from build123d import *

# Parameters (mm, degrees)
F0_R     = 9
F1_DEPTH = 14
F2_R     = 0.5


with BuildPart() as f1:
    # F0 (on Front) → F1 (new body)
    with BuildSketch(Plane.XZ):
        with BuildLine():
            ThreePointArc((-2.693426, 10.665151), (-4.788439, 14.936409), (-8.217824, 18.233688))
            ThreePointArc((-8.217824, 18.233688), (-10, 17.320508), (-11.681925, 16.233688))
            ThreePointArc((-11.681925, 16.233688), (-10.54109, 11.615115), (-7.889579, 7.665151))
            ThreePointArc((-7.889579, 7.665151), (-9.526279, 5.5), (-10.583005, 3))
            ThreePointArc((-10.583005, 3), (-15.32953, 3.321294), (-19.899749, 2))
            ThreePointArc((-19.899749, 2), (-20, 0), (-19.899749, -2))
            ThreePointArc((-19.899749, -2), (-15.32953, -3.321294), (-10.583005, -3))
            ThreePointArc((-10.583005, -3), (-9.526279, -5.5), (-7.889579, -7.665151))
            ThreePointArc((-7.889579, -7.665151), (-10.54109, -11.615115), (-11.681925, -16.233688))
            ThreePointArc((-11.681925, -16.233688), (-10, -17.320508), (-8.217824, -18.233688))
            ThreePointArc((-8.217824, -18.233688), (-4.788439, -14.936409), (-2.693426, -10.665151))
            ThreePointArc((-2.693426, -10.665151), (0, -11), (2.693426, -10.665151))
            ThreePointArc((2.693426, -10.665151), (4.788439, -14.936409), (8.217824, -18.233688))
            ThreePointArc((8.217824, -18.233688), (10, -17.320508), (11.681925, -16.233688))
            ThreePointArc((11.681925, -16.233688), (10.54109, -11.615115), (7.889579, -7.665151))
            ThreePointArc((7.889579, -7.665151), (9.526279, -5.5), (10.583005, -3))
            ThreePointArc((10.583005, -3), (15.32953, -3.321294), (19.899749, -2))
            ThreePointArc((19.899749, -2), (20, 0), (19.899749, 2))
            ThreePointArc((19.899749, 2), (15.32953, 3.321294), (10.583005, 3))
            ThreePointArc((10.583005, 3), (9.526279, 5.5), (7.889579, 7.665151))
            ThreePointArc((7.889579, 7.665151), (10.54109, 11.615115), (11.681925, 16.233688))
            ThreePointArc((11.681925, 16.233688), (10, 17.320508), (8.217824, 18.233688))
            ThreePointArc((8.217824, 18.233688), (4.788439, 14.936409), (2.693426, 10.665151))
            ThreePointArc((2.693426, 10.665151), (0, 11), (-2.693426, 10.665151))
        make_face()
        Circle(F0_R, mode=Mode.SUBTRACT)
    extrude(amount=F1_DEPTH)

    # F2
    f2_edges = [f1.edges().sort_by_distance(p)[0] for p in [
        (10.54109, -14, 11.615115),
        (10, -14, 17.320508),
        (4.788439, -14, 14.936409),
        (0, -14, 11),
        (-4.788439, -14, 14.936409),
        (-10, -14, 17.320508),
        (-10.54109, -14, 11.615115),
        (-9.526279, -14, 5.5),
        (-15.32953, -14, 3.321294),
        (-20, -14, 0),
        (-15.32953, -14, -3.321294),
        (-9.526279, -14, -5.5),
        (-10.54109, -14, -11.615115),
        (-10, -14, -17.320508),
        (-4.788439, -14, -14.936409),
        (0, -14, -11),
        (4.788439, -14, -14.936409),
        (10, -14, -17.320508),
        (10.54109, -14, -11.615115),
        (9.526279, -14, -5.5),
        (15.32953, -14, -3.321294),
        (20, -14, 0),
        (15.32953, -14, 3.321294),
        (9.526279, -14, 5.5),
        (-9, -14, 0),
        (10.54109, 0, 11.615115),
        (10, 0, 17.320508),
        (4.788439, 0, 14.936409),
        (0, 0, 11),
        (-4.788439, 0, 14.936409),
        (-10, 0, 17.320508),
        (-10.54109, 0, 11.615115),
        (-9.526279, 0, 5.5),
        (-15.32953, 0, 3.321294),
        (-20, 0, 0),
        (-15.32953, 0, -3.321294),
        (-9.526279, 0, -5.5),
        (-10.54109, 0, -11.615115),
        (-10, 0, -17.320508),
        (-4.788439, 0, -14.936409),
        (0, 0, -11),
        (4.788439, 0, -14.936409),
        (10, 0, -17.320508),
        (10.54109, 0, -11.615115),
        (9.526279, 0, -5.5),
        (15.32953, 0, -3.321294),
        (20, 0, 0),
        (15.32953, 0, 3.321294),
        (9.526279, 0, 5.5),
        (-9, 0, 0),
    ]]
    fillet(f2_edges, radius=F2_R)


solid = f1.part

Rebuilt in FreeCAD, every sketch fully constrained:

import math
import FreeCAD as App
import Part
import Sketcher
from FreeCAD import Vector
Q = App.Units.Quantity


def edges_at(feature, points):
    """Names of the edges that pass closest to the given points."""
    edges = feature.Shape.Edges
    near = lambda p: min(range(len(edges)), key=lambda i: edges[i].distToShape(Part.Vertex(*p))[0])
    return sorted({f"Edge{near(p) + 1}" for p in points})

doc = App.newDocument("Part")
body = doc.addObject("PartDesign::Body", "Body")

# Sketch on XZ plane
sketch1 = body.newObject("Sketcher::SketchObject", "Sketch")
sketch1.AttachmentSupport = (doc.getObject("XZ_Plane"), [""])
sketch1.MapMode = "FlatFace"
sketch1.addGeometry([
    Part.ArcOfCircle(Part.Circle(Vector(-15.854191, 6.859338, 0), Vector(0, 0, 1), 13.699998), math.radians(16.128745), math.radians(56.123881)),  # 0
    Part.ArcOfCircle(Part.Circle(Vector(0.000017, -0.000026, 0), Vector(0, 0, 1), 20.000031), math.radians(114.260844), math.radians(125.739165)),  # 1
    Part.ArcOfCircle(Part.Circle(Vector(1.986742, 17.159804, 0), Vector(0, 0, 1), 13.700005), math.radians(-176.123869), math.radians(-136.128758)),  # 2
    Part.ArcOfCircle(Part.Circle(Vector(0.000005, -0.000003, 0), Vector(0, 0, 1), 11.000006), math.radians(135.826631), math.radians(164.173372)),  # 3
    Part.ArcOfCircle(Part.Circle(Vector(-13.867456, -10.300474, 0), Vector(0, 0, 1), 13.700008), math.radians(76.128758), math.radians(116.123862)),  # 4
    Part.ArcOfCircle(Part.Circle(Vector(0.000051, 0, 0), Vector(0, 0, 1), 20.000051), math.radians(174.260844), math.radians(185.739156)),  # 5
    Part.ArcOfCircle(Part.Circle(Vector(-13.867456, 10.300474, 0), Vector(0, 0, 1), 13.700008), math.radians(-116.123862), math.radians(-76.128758)),  # 6
    Part.ArcOfCircle(Part.Circle(Vector(0.000005, 0.000003, 0), Vector(0, 0, 1), 11.000006), math.radians(-164.173372), math.radians(-135.826631)),  # 7
    Part.ArcOfCircle(Part.Circle(Vector(1.986742, -17.159804, 0), Vector(0, 0, 1), 13.700005), math.radians(136.128758), math.radians(176.123869)),  # 8
    Part.ArcOfCircle(Part.Circle(Vector(0.000017, 0.000026, 0), Vector(0, 0, 1), 20.000031), math.radians(-125.739165), math.radians(-114.260844)),  # 9
    Part.ArcOfCircle(Part.Circle(Vector(-15.854191, -6.859338, 0), Vector(0, 0, 1), 13.699998), math.radians(-56.123881), math.radians(-16.128745)),  # 10
    Part.ArcOfCircle(Part.Circle(Vector(0, -0.000016, 0), Vector(0, 0, 1), 10.999984), math.radians(-104.173398), math.radians(-75.826602)),  # 11
    Part.ArcOfCircle(Part.Circle(Vector(15.854191, -6.859338, 0), Vector(0, 0, 1), 13.699998), math.radians(-163.871255), math.radians(-123.876119)),  # 12
    Part.ArcOfCircle(Part.Circle(Vector(-0.000017, 0.000026, 0), Vector(0, 0, 1), 20.000031), math.radians(-65.739156), math.radians(-54.260835)),  # 13
    Part.ArcOfCircle(Part.Circle(Vector(-1.986742, -17.159804, 0), Vector(0, 0, 1), 13.700005), math.radians(3.876131), math.radians(43.871242)),  # 14
    Part.ArcOfCircle(Part.Circle(Vector(-0.000005, 0.000003, 0), Vector(0, 0, 1), 11.000006), math.radians(-44.173369), math.radians(-15.826628)),  # 15
    Part.ArcOfCircle(Part.Circle(Vector(13.867456, 10.300474, 0), Vector(0, 0, 1), 13.700008), math.radians(-103.871242), math.radians(-63.876138)),  # 16
    Part.ArcOfCircle(Part.Circle(Vector(-0.000051, 0, 0), Vector(0, 0, 1), 20.000051), math.radians(-5.739156), math.radians(5.739156)),  # 17
    Part.ArcOfCircle(Part.Circle(Vector(13.867456, -10.300474, 0), Vector(0, 0, 1), 13.700008), math.radians(63.876138), math.radians(103.871242)),  # 18
    Part.ArcOfCircle(Part.Circle(Vector(-0.000005, -0.000003, 0), Vector(0, 0, 1), 11.000006), math.radians(15.826628), math.radians(44.173369)),  # 19
    Part.ArcOfCircle(Part.Circle(Vector(-1.986742, 17.159804, 0), Vector(0, 0, 1), 13.700005), math.radians(-43.871242), math.radians(-3.876131)),  # 20
    Part.ArcOfCircle(Part.Circle(Vector(-0.000017, -0.000026, 0), Vector(0, 0, 1), 20.000031), math.radians(54.260835), math.radians(65.739156)),  # 21
    Part.ArcOfCircle(Part.Circle(Vector(15.854191, 6.859338, 0), Vector(0, 0, 1), 13.699998), math.radians(123.876119), math.radians(163.871255)),  # 22
    Part.ArcOfCircle(Part.Circle(Vector(0, 0.000016, 0), Vector(0, 0, 1), 10.999984), math.radians(75.826602), math.radians(104.173398)),  # 23
    Part.Circle(Vector(0, 0, 0), Vector(0, 0, 1), 9),  # 24
], False)
sketch1.addConstraint([
    Sketcher.Constraint("Coincident", 0, 2, 1, 1),
    Sketcher.Constraint("Coincident", 1, 2, 2, 1),
    Sketcher.Constraint("Coincident", 2, 2, 3, 1),
    Sketcher.Constraint("Coincident", 3, 2, 4, 1),
    Sketcher.Constraint("Coincident", 4, 2, 5, 1),
    Sketcher.Constraint("Coincident", 5, 2, 6, 1),
    Sketcher.Constraint("Coincident", 6, 2, 7, 1),
    Sketcher.Constraint("Coincident", 7, 2, 8, 1),
    Sketcher.Constraint("Coincident", 8, 2, 9, 1),
    Sketcher.Constraint("Coincident", 9, 2, 10, 1),
    Sketcher.Constraint("Coincident", 10, 2, 11, 1),
    Sketcher.Constraint("Coincident", 11, 2, 12, 1),
    Sketcher.Constraint("Coincident", 12, 2, 13, 1),
    Sketcher.Constraint("Coincident", 13, 2, 14, 1),
    Sketcher.Constraint("Coincident", 14, 2, 15, 1),
    Sketcher.Constraint("Coincident", 15, 2, 16, 1),
    Sketcher.Constraint("Coincident", 16, 2, 17, 1),
    Sketcher.Constraint("Coincident", 17, 2, 18, 1),
    Sketcher.Constraint("Coincident", 18, 2, 19, 1),
    Sketcher.Constraint("Coincident", 19, 2, 20, 1),
    Sketcher.Constraint("Coincident", 20, 2, 21, 1),
    Sketcher.Constraint("Coincident", 21, 2, 22, 1),
    Sketcher.Constraint("Coincident", 22, 2, 23, 1),
    Sketcher.Constraint("Coincident", 23, 2, 0, 1),
    Sketcher.Constraint("Coincident", 3, 3, -1, 1),
    Sketcher.Constraint("Coincident", 7, 3, -1, 1),
    Sketcher.Constraint("Coincident", 15, 3, -1, 1),
    Sketcher.Constraint("Coincident", 19, 3, -1, 1),
    Sketcher.Constraint("Coincident", 24, 3, -1, 1),
    Sketcher.Constraint("Equal", 4, 6),
    Sketcher.Constraint("Equal", 3, 7),
    Sketcher.Constraint("Equal", 2, 8),
    Sketcher.Constraint("Equal", 1, 9),
    Sketcher.Constraint("Equal", 0, 10),
    Sketcher.Constraint("Equal", 10, 12),
    Sketcher.Constraint("Equal", 9, 13),
    Sketcher.Constraint("Equal", 8, 14),
    Sketcher.Constraint("Equal", 7, 15),
    Sketcher.Constraint("Equal", 6, 16),
    Sketcher.Constraint("Equal", 5, 17),
    Sketcher.Constraint("Equal", 16, 18),
    Sketcher.Constraint("Equal", 15, 19),
    Sketcher.Constraint("Equal", 14, 20),
    Sketcher.Constraint("Equal", 13, 21),
    Sketcher.Constraint("Equal", 12, 22),
    Sketcher.Constraint("Equal", 11, 23),
    Sketcher.Constraint("Symmetric", 0, 3, 12, 3, -1, 1),
    Sketcher.Constraint("Symmetric", 1, 3, 13, 3, -1, 1),
    Sketcher.Constraint("Symmetric", 2, 3, 14, 3, -1, 1),
    Sketcher.Constraint("Symmetric", 4, 3, 16, 3, -1, 1),
    Sketcher.Constraint("Symmetric", 5, 3, 17, 3, -1, 1),
    Sketcher.Constraint("Symmetric", 6, 3, 18, 3, -1, 1),
    Sketcher.Constraint("Symmetric", 8, 3, 20, 3, -1, 1),
    Sketcher.Constraint("Symmetric", 9, 3, 21, 3, -1, 1),
    Sketcher.Constraint("Symmetric", 10, 3, 22, 3, -1, 1),
    Sketcher.Constraint("Symmetric", 11, 3, 23, 3, -1, 1),
    Sketcher.Constraint("Symmetric", 10, 3, 12, 3, -2),
    Sketcher.Constraint("Symmetric", 9, 3, 13, 3, -2),
    Sketcher.Constraint("Symmetric", 8, 3, 14, 3, -2),
    Sketcher.Constraint("Symmetric", 6, 3, 16, 3, -2),
    Sketcher.Constraint("PointOnObject", 5, 3, -1),
    Sketcher.Constraint("PointOnObject", 11, 3, -2),
    Sketcher.Constraint("Diameter", 24, Q("18 mm")),
    Sketcher.Constraint("Radius", 0, Q("13.699998 mm")),
    Sketcher.Constraint("DistanceY", -1, 1, 3, 2, Q("3 mm")),
    Sketcher.Constraint("DistanceY", -1, 1, 4, 2, Q("2 mm")),
    Sketcher.Constraint("DistanceY", 1, 2, 0, 2, Q("2 mm")),
    Sketcher.Constraint("DistanceY", 10, 2, 7, 2, Q("3 mm")),
    Sketcher.Constraint("Radius", 1, Q("20.000031 mm")),
    Sketcher.Constraint("Radius", 5, Q("20.000051 mm")),
    Sketcher.Constraint("Radius", 2, Q("13.700005 mm")),
    Sketcher.Constraint("Radius", 3, Q("11.000006 mm")),
    Sketcher.Constraint("Radius", 4, Q("13.700008 mm")),
    Sketcher.Constraint("Radius", 11, Q("10.999984 mm")),
    Sketcher.Constraint("DistanceY", 1, 3, 6, 3, Q("10.3005 mm")),
    Sketcher.Constraint("DistanceY", 7, 3, 2, 3, Q("17.159801 mm")),
    Sketcher.Constraint("DistanceX", 1, 2, 0, 2, Q("3.464101 mm")),
    Sketcher.Constraint("DistanceX", 9, 2, 10, 2, Q("5.524398 mm")),
    Sketcher.Constraint("DistanceX", 0, 3, -1, 1, Q("15.854191 mm")),
    Sketcher.Constraint("DistanceX", -1, 1, 2, 3, Q("1.986742 mm")),
])
pad1 = body.newObject("PartDesign::Pad", "Pad")
pad1.Profile = sketch1
pad1.Length = 14
doc.recompute()

fillet = body.newObject("PartDesign::Fillet", "Fillet")
fillet.Base = (pad1, edges_at(pad1, [
    (10.541, -14, 11.615),
    (10, -14, 17.321),
    (4.788, -14, 14.936),
    (0, -14, 11),
    (-4.788, -14, 14.936),
    (-10, -14, 17.321),
    (-10.541, -14, 11.615),
    (-9.526, -14, 5.5),
    (-15.33, -14, 3.321),
    (-20, -14, 0),
    (-15.33, -14, -3.321),
    (-9.526, -14, -5.5),
    (-10.541, -14, -11.615),
    (-10, -14, -17.321),
    (-4.788, -14, -14.936),
    (0, -14, -11),
    (4.788, -14, -14.936),
    (10, -14, -17.321),
    (10.541, -14, -11.615),
    (9.526, -14, -5.5),
    (15.33, -14, -3.321),
    (20, -14, 0),
    (15.33, -14, 3.321),
    (9.526, -14, 5.5),
    (-9, -14, 0),
    (10.541, 0, 11.615),
    (10, 0, 17.321),
    (4.788, 0, 14.936),
    (0, 0, 11),
    (-4.788, 0, 14.936),
    (-10, 0, 17.321),
    (-10.541, 0, 11.615),
    (-9.526, 0, 5.5),
    (-15.33, 0, 3.321),
    (-20, 0, 0),
    (-15.33, 0, -3.321),
    (-9.526, 0, -5.5),
    (-10.541, 0, -11.615),
    (-10, 0, -17.321),
    (-4.788, 0, -14.936),
    (0, 0, -11),
    (4.788, 0, -14.936),
    (10, 0, -17.321),
    (10.541, 0, -11.615),
    (9.526, 0, -5.5),
    (15.33, 0, -3.321),
    (20, 0, 0),
    (15.33, 0, 3.321),
    (9.526, 0, 5.5),
    (-9, 0, 0),
]))
fillet.Radius = 0.5

doc.recompute()
